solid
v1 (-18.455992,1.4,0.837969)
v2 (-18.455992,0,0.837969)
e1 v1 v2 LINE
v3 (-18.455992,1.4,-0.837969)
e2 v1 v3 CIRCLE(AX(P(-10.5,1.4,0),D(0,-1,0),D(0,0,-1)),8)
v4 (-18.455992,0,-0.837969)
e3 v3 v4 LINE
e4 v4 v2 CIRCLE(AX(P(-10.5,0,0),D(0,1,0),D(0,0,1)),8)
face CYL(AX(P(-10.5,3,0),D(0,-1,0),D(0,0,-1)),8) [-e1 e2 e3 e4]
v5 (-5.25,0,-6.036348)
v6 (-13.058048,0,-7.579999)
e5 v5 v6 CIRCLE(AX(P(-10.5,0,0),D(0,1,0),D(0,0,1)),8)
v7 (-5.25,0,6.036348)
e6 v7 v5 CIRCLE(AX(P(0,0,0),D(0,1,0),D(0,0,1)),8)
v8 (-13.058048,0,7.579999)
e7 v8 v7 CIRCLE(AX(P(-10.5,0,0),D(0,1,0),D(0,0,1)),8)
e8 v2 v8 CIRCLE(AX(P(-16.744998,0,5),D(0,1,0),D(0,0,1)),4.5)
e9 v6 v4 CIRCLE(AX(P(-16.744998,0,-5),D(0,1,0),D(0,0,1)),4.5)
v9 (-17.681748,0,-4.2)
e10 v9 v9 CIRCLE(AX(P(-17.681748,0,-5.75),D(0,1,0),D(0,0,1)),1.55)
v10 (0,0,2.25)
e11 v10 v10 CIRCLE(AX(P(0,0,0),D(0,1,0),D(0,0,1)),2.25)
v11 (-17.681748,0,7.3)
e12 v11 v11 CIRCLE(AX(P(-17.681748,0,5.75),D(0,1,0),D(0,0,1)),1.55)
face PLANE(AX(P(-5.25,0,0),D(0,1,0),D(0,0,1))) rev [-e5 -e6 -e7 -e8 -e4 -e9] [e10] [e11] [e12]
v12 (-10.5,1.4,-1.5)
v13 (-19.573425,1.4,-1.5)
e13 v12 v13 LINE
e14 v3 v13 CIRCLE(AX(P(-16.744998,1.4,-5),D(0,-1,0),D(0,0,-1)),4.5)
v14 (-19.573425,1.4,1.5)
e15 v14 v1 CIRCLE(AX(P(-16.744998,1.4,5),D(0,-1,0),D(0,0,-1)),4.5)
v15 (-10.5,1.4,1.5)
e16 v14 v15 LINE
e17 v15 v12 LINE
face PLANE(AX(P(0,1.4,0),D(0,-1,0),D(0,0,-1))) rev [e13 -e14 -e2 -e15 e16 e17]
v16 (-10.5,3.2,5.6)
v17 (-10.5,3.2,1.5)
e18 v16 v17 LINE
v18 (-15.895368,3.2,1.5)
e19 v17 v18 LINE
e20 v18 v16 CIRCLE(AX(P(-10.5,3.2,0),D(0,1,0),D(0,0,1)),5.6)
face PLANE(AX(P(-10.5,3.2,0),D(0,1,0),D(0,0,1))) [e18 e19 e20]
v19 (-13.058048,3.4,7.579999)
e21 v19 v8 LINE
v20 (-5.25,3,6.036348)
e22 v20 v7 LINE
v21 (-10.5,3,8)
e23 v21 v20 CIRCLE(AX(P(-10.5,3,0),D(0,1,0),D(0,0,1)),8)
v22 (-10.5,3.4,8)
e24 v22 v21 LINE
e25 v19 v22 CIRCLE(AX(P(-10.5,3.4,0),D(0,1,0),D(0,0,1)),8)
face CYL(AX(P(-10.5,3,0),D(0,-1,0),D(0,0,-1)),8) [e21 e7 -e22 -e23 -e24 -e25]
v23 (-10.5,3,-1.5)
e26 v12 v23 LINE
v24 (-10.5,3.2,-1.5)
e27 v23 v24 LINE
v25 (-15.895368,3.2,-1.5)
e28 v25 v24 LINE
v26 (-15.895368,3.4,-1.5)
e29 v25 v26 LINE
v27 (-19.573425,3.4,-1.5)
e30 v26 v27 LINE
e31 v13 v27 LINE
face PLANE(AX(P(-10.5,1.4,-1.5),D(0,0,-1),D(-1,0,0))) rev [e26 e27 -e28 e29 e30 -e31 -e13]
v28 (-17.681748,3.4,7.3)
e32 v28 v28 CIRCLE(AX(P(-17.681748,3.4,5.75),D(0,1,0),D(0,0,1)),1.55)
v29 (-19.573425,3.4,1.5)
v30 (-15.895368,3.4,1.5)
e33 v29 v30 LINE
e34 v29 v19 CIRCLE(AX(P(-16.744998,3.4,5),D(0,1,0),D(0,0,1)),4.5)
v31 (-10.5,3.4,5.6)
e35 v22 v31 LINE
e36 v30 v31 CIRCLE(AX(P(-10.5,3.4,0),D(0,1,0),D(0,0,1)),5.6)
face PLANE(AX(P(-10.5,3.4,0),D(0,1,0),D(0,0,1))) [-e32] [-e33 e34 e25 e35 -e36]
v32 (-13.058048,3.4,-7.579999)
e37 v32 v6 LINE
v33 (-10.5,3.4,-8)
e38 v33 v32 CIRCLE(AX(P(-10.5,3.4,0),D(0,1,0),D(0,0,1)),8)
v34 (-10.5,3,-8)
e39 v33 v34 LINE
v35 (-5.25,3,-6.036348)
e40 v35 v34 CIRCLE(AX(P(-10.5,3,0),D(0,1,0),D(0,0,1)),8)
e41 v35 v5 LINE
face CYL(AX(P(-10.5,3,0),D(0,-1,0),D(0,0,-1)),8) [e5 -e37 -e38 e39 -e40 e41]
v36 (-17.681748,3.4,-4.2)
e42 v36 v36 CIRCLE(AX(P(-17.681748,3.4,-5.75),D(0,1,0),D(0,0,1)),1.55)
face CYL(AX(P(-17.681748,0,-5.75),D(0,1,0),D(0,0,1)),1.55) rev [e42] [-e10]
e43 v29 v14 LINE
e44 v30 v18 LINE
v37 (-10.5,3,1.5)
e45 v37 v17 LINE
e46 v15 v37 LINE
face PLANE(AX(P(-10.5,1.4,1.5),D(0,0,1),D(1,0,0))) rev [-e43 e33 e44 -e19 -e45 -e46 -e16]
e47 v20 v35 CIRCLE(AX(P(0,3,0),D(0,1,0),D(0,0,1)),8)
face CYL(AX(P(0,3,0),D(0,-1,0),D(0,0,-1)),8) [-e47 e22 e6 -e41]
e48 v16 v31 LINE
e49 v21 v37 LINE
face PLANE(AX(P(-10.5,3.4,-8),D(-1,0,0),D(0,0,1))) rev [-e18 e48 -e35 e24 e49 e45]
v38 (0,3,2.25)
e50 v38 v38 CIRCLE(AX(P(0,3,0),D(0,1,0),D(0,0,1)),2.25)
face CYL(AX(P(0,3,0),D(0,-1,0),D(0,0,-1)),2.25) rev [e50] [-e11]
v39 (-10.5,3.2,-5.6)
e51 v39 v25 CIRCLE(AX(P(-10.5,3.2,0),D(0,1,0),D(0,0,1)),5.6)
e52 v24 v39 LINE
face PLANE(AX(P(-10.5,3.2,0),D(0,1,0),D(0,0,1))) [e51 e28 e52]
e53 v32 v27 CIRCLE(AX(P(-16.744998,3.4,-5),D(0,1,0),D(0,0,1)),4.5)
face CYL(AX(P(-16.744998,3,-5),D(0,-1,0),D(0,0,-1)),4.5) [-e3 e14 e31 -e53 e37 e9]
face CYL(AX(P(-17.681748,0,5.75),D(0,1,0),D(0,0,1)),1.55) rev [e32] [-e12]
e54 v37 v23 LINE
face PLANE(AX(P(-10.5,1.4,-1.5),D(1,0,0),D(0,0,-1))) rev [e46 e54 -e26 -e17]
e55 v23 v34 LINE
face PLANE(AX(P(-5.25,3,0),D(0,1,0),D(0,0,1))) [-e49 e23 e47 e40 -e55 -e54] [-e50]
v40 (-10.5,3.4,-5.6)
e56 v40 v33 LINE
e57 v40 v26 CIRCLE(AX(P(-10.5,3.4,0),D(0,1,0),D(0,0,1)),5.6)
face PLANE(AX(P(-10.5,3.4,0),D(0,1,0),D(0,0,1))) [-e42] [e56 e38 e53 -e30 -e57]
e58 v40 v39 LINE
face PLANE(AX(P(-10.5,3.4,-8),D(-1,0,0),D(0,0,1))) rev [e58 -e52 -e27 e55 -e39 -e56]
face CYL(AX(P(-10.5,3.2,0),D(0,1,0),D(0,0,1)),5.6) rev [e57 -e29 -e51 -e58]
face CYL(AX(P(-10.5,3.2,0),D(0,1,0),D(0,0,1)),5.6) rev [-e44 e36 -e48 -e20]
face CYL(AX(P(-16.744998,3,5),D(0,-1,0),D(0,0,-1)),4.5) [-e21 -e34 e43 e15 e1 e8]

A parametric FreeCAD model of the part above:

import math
import FreeCAD as App
import Part
import Sketcher

V = App.Vector


def add_polygon(sketch, points):
    """Adds a closed chain of lines whose ends are joined by coincident constraints."""
    first, n = sketch.GeometryCount, len(points)
    for a, b in zip(points, points[1:] + points[:1]):
        sketch.addGeometry(Part.LineSegment(App.Vector(*a, 0), App.Vector(*b, 0)), False)
    for i in range(n):
        sketch.addConstraint(Sketcher.Constraint("Coincident", first + i, 2, first + (i + 1) % n, 1))

doc = App.newDocument("Part")
body = doc.addObject("PartDesign::Body", "Body")

# Sketch on XZ plane
sketch1 = body.newObject("Sketcher::SketchObject", "Sketch")
sketch1.AttachmentSupport = (doc.getObject("XZ_Plane"), [""])
sketch1.MapMode = "FlatFace"
sketch1.addGeometry([
    Part.ArcOfCircle(Part.Circle(V(0, 0, 0), V(0, 0, 1), 8), math.radians(-131.0145), math.radians(131.0145)),  # 0
    Part.ArcOfCircle(Part.Circle(V(-10.5, 0, 0), V(0, 0, 1), 8), math.radians(-108.648167), math.radians(-48.9855)),  # 1
    Part.ArcOfCircle(Part.Circle(V(-16.744998, -5, 0), V(0, 0, 1), 4.5), math.radians(112.347365), math.radians(325.01701)),  # 2
    Part.ArcOfCircle(Part.Circle(V(-10.5, 0, 0), V(0, 0, 1), 8), math.radians(173.987458), math.radians(186.012542)),  # 3
    Part.ArcOfCircle(Part.Circle(V(-16.744998, 5, 0), V(0, 0, 1), 4.5), math.radians(34.98299), math.radians(247.652635)),  # 4
    Part.ArcOfCircle(Part.Circle(V(-10.5, 0, 0), V(0, 0, 1), 8), math.radians(48.9855), math.radians(108.648167)),  # 5
    Part.Circle(V(0, 0, 0), V(0, 0, 1), 2.25),  # 6
], False)
sketch1.addConstraint([
    Sketcher.Constraint("Coincident", 0, 1, 1, 2),
    Sketcher.Constraint("Coincident", 1, 1, 2, 2),
    Sketcher.Constraint("Coincident", 2, 1, 3, 2),
    Sketcher.Constraint("Coincident", 3, 1, 4, 2),
    Sketcher.Constraint("Coincident", 4, 1, 5, 2),
    Sketcher.Constraint("Coincident", 5, 1, 0, 2),
    Sketcher.Constraint("Coincident", 0, 3, -1, 1),
    Sketcher.Constraint("Coincident", 6, 3, -1, 1),
    Sketcher.Constraint("Coincident", 3, 3, 1, 3),
    Sketcher.Constraint("Coincident", 5, 3, 1, 3),
    Sketcher.Constraint("Equal", 0, 1),
    Sketcher.Constraint("Equal", 1, 3),
    Sketcher.Constraint("Equal", 2, 4),
    Sketcher.Constraint("Equal", 3, 5),
    Sketcher.Constraint("Symmetric", 2, 3, 4, 3, -1),
    Sketcher.Constraint("PointOnObject", 1, 3, -1),
    Sketcher.Constraint("Radius", 0, 8.0),
    Sketcher.Constraint("Diameter", 6, 4.5),
    Sketcher.Constraint("Radius", 2, 4.5),
    Sketcher.Constraint("DistanceY", 2, 3, -1, 1, 5.0),
    Sketcher.Constraint("DistanceX", 1, 3, -1, 1, 10.5),
    Sketcher.Constraint("DistanceY", 1, 1, -1, 1, 7.579999),
])
pad1 = body.newObject("PartDesign::Pad", "Pad")
pad1.Profile = sketch1
pad1.Length = 3
pad1.Reversed = True

# Sketch on XZ plane
sketch2 = body.newObject("Sketcher::SketchObject", "Sketch001")
sketch2.AttachmentSupport = (doc.getObject("XZ_Plane"), [""])
sketch2.MapMode = "FlatFace"
sketch2.AttachmentOffset = App.Placement(V(0, 0, -3), App.Rotation())
sketch2.addGeometry([
    Part.LineSegment(V(-10.5, 8, 0), V(-10.5, -8, 0)),  # 0
    Part.ArcOfCircle(Part.Circle(V(-10.5, 0, 0), V(0, 0, 1), 8), math.radians(-108.648167), math.radians(-90)),  # 1
    Part.ArcOfCircle(Part.Circle(V(-16.744998, -5, 0), V(0, 0, 1), 4.5), math.radians(112.347365), math.radians(325.01701)),  # 2
    Part.ArcOfCircle(Part.Circle(V(-10.5, 0, 0), V(0, 0, 1), 8), math.radians(173.987458), math.radians(186.012542)),  # 3
    Part.ArcOfCircle(Part.Circle(V(-16.744998, 5, 0), V(0, 0, 1), 4.5), math.radians(34.98299), math.radians(247.652635)),  # 4
    Part.ArcOfCircle(Part.Circle(V(-10.5, 0, 0), V(0, 0, 1), 8), math.radians(90), math.radians(108.648167)),  # 5
], False)
sketch2.addConstraint([
    Sketcher.Constraint("Coincident", 0, 2, 1, 2),
    Sketcher.Constraint("Coincident", 1, 1, 2, 2),
    Sketcher.Constraint("Coincident", 2, 1, 3, 2),
    Sketcher.Constraint("Coincident", 3, 1, 4, 2),
    Sketcher.Constraint("Coincident", 4, 1, 5, 2),
    Sketcher.Constraint("Coincident", 5, 1, 0, 1),
    Sketcher.Constraint("Vertical", 0),
    Sketcher.Constraint("Coincident", 3, 3, 1, 3),
    Sketcher.Constraint("Coincident", 5, 3, 1, 3),
    Sketcher.Constraint("Equal", 1, 3),
    Sketcher.Constraint("Equal", 2, 4),
    Sketcher.Constraint("Equal", 3, 5),
    Sketcher.Constraint("Symmetric", 2, 3, 4, 3, -1),
    Sketcher.Constraint("PointOnObject", 1, 3, -1),
    Sketcher.Constraint("Vertical", 5, 3, 0, 2),
    Sketcher.Constraint("Radius", 1, 8.0),
    Sketcher.Constraint("Radius", 2, 4.5),
    Sketcher.Constraint("DistanceY", 2, 3, -1, 1, 5.0),
    Sketcher.Constraint("DistanceX", 1, 3, -1, 1, 10.5),
    Sketcher.Constraint("DistanceY", 1, 1, -1, 1, 7.579999),
])
pad2 = body.newObject("PartDesign::Pad", "Pad001")
pad2.Profile = sketch2
pad2.Length = 0.4
pad2.Reversed = True

# Sketch on XZ plane
sketch3 = body.newObject("Sketcher::SketchObject", "Sketch002")
sketch3.AttachmentSupport = (doc.getObject("XZ_Plane"), [""])
sketch3.MapMode = "FlatFace"
sketch3.AttachmentOffset = App.Placement(V(0, 0, -3.4), App.Rotation())
add_polygon(sketch3, [(-23.022513, -1.5), (-23.022513, 1.5), (-10.5, 1.5), (-10.5, -1.5)])  # lines 0-3
sketch3.addConstraint([
    Sketcher.Constraint("Vertical", 0),
    Sketcher.Constraint("Horizontal", 1),
    Sketcher.Constraint("Vertical", 2),
    Sketcher.Constraint("Horizontal", 3),
    Sketcher.Constraint("DistanceY", 0, 1, 0, 2, 3.0),
    Sketcher.Constraint("DistanceY", -1, 1, 0, 2, 1.5),
    Sketcher.Constraint("DistanceX", 1, 2, -1, 1, 10.5),
    Sketcher.Constraint("DistanceX", 1, 1, 1, 2, 12.522513),
])
pocket1 = body.newObject("PartDesign::Pocket", "Pocket")
pocket1.Profile = sketch3
pocket1.Length = 2
pocket1.Reversed = True

# Sketch on XZ plane
sketch4 = body.newObject("Sketcher::SketchObject", "Sketch003")
sketch4.AttachmentSupport = (doc.getObject("XZ_Plane"), [""])
sketch4.MapMode = "FlatFace"
sketch4.AttachmentOffset = App.Placement(V(0, 0, -3.4), App.Rotation())
sketch4.addGeometry(Part.Circle(V(-10.5, 0, 0), V(0, 0, 1), 5.6), False)
sketch4.addConstraint([
    Sketcher.Constraint("PointOnObject", 0, 3, -1),
    Sketcher.Constraint("Diameter", 0, 11.2),
    Sketcher.Constraint("DistanceX", 0, 3, -1, 1, 10.5),
])
pocket2 = body.newObject("PartDesign::Pocket", "Pocket001")
pocket2.Profile = sketch4
pocket2.Length = 0.2
pocket2.Reversed = True

# Sketch on XZ plane
sketch5 = body.newObject("Sketcher::SketchObject", "Sketch004")
sketch5.AttachmentSupport = (doc.getObject("XZ_Plane"), [""])
sketch5.MapMode = "FlatFace"
sketch5.AttachmentOffset = App.Placement(V(0, 0, -3.4), App.Rotation())
sketch5.addGeometry([
    Part.Circle(V(-17.681748, -5.75, 0), V(0, 0, 1), 1.55),
    Part.Circle(V(-17.681748, 5.75, 0), V(0, 0, 1), 1.55),
], False)
sketch5.addConstraint([
    Sketcher.Constraint("Equal", 0, 1),
    Sketcher.Constraint("Symmetric", 0, 3, 1, 3, -1),
    Sketcher.Constraint("Diameter", 0, 3.1),
    Sketcher.Constraint("DistanceY", 0, 3, 1, 3, 11.5),
    Sketcher.Constraint("DistanceX", 0, 3, -1, 1, 17.681748),
])
pocket3 = body.newObject("PartDesign::Pocket", "Pocket002")
pocket3.Profile = sketch5
pocket3.Type = "ThroughAll"
pocket3.Reversed = True

doc.recompute()
